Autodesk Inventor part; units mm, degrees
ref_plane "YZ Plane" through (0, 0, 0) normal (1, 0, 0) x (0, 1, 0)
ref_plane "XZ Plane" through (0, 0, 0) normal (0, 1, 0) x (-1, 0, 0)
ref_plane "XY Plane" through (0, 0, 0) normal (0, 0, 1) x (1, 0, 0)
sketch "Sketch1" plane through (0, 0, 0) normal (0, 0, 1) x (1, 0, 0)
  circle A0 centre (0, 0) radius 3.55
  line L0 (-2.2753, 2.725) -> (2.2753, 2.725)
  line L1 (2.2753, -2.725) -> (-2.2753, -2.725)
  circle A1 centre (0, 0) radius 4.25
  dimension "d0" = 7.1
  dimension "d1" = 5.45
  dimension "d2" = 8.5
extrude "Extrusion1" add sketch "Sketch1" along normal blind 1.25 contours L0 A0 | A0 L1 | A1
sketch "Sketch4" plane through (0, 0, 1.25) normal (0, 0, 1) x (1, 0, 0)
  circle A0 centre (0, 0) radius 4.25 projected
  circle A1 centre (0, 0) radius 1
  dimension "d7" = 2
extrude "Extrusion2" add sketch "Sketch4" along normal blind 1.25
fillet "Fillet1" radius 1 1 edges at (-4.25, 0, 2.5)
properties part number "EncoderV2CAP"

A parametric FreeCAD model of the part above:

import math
import FreeCAD as App
import Part
import Sketcher
from FreeCAD import Vector


def edges_at(feature, points):
    """Names of the edges that pass closest to the given points."""
    edges = feature.Shape.Edges
    near = lambda p: min(range(len(edges)), key=lambda i: edges[i].distToShape(Part.Vertex(*p))[0])
    return sorted({f"Edge{near(p) + 1}" for p in points})

doc = App.newDocument("Part")
params = doc.addObject("Spreadsheet::Sheet", "Params")
for row, (alias, value) in enumerate([
    ("sketch1_diameter", "8.5 mm"),
    ("sketch1_radius", "3.55 mm"),
    ("pad1_length", "1.25 mm"),
    ("sketch2_diameter", "2 mm"),
    ("sketch2_diameter2", "8.5 mm"),
    ("pad2_length", "1.25 mm"),
    ("fillet_radius", "1 mm"),
], start=1):
    params.set(f"A{row}", alias)
    params.set(f"B{row}", "=" + value)
    params.setAlias(f"B{row}", alias)

body = doc.addObject("PartDesign::Body", "Body")

# Sketch on XY plane
sketch1 = body.newObject("Sketcher::SketchObject", "Sketch")
sketch1.AttachmentSupport = (doc.getObject("XY_Plane"), [""])
sketch1.MapMode = "FlatFace"
sketch1.addGeometry([
    Part.Circle(Vector(0, 0, 0), Vector(0, 0, 1), 4.2),  # 0
    Part.LineSegment(Vector(-2.3, 2.7, 0), Vector(2.3, 2.7, 0)),  # 1
    Part.ArcOfCircle(Part.Circle(Vector(0, 0, 0), Vector(0, 0, 1), 3.5), math.radians(-50), math.radians(50)),  # 2
    Part.LineSegment(Vector(2.3, -2.7, 0), Vector(-2.3, -2.7, 0)),  # 3
    Part.ArcOfCircle(Part.Circle(Vector(0, 0, 0), Vector(0, 0, 1), 3.5), math.radians(130), math.radians(230)),  # 4
], False)
sketch1.addConstraint([
    Sketcher.Constraint("Coincident", 1, 2, 2, 2),
    Sketcher.Constraint("Coincident", 2, 1, 3, 1),
    Sketcher.Constraint("Coincident", 3, 2, 4, 2),
    Sketcher.Constraint("Coincident", 4, 1, 1, 1),
    Sketcher.Constraint("Horizontal", 1),
    Sketcher.Constraint("Horizontal", 3),
    Sketcher.Constraint("Coincident", 0, 3, -1, 1),
    Sketcher.Constraint("Coincident", 2, 3, -1, 1),
    Sketcher.Constraint("Coincident", 4, 3, -1, 1),
    Sketcher.Constraint("Equal", 2, 4),
    Sketcher.Constraint("Vertical", 1, 2, 2, 1),
    Sketcher.Constraint("Diameter", 0, 8.5),
    Sketcher.Constraint("Radius", 2, 3.55),
    Sketcher.Constraint("DistanceY", 2, 1, 1, 2, 5.45),
])
sketch1.setExpression("Constraints[11]", "Params.sketch1_diameter")
sketch1.setExpression("Constraints[12]", "Params.sketch1_radius")
pad1 = body.newObject("PartDesign::Pad", "Pad")
pad1.Profile = sketch1
pad1.setExpression("Length", "Params.pad1_length")

# Sketch on XY plane
sketch2 = body.newObject("Sketcher::SketchObject", "Sketch001")
sketch2.AttachmentSupport = (doc.getObject("XY_Plane"), [""])
sketch2.MapMode = "FlatFace"
sketch2.AttachmentOffset = App.Placement(Vector(0, 0, 1.25), App.Rotation())
sketch2.addGeometry([
    Part.Circle(Vector(0, 0, 0), Vector(0, 0, 1), 4.2),
    Part.Circle(Vector(0, 0, 0), Vector(0, 0, 1), 1),
], False)
sketch2.addConstraint([
    Sketcher.Constraint("Coincident", 0, 3, -1, 1),
    Sketcher.Constraint("Coincident", 1, 3, -1, 1),
    Sketcher.Constraint("Diameter", 1, 2.0),
    Sketcher.Constraint("Diameter", 0, 8.5),
])
sketch2.setExpression("Constraints[2]", "Params.sketch2_diameter")
sketch2.setExpression("Constraints[3]", "Params.sketch2_diameter2")
pad2 = body.newObject("PartDesign::Pad", "Pad001")
pad2.Profile = sketch2
pad2.setExpression("Length", "Params.pad2_length")
doc.recompute()

fillet = body.newObject("PartDesign::Fillet", "Fillet")
fillet.Base = (pad2, edges_at(pad2, [(-4.25, 0, 2.5)]))
fillet.setExpression("Radius", "Params.fillet_radius")

doc.recompute()
